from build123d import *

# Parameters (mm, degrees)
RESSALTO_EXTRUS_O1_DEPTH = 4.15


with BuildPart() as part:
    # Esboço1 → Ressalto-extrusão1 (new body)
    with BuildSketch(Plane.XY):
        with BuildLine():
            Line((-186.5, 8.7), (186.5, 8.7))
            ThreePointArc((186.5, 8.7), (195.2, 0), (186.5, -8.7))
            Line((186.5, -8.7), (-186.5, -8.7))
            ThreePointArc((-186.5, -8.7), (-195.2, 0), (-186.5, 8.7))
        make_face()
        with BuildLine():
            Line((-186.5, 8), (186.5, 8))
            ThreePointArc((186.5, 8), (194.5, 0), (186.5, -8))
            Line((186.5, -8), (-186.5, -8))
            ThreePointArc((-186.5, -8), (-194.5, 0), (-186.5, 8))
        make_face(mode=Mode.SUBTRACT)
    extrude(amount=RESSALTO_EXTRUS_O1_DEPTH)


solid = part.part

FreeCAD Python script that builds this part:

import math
import FreeCAD as App
import Part
import Sketcher

V = App.Vector
Q = App.Units.Quantity

doc = App.newDocument("Part")
body = doc.addObject("PartDesign::Body", "Body")

# Sketch on XY plane
sketch1 = body.newObject("Sketcher::SketchObject", "Sketch")
sketch1.AttachmentSupport = (doc.getObject("XY_Plane"), [""])
sketch1.MapMode = "FlatFace"
sketch1.addGeometry([
    Part.LineSegment(V(186.5, 8.7, 0), V(-186.5, 8.7, 0)),  # 0
    Part.ArcOfCircle(Part.Circle(V(-186.5, 0, 0), V(0, 0, 1), 8.7), math.radians(90), math.radians(270)),  # 1
    Part.LineSegment(V(-186.5, -8.7, 0), V(186.5, -8.7, 0)),  # 2
    Part.ArcOfCircle(Part.Circle(V(186.5, 0, 0), V(0, 0, 1), 8.7), math.radians(-90), math.radians(90)),  # 3
    Part.LineSegment(V(-186.5, 8, 0), V(186.5, 8, 0)),  # 4
    Part.ArcOfCircle(Part.Circle(V(186.5, 0, 0), V(0, 0, 1), 8), math.radians(-90), math.radians(90)),  # 5
    Part.LineSegment(V(186.5, -8, 0), V(-186.5, -8, 0)),  # 6
    Part.ArcOfCircle(Part.Circle(V(-186.5, 0, 0), V(0, 0, 1), 8), math.radians(90), math.radians(270)),  # 7
], False)
sketch1.addConstraint([
    Sketcher.Constraint("Tangent", 0, 2, 1, 1),
    Sketcher.Constraint("Tangent", 1, 2, 2, 1),
    Sketcher.Constraint("Tangent", 2, 2, 3, 1),
    Sketcher.Constraint("Tangent", 3, 2, 0, 1),
    Sketcher.Constraint("Tangent", 4, 2, 5, 2),
    Sketcher.Constraint("Tangent", 5, 1, 6, 1),
    Sketcher.Constraint("Tangent", 6, 2, 7, 2),
    Sketcher.Constraint("Tangent", 7, 1, 4, 1),
    Sketcher.Constraint("Horizontal", 0),
    Sketcher.Constraint("Horizontal", 2),
    Sketcher.Constraint("Horizontal", 4),
    Sketcher.Constraint("Horizontal", 6),
    Sketcher.Constraint("Coincident", 5, 3, 3, 3),
    Sketcher.Constraint("Symmetric", 1, 3, 3, 3, -1, 1),
    Sketcher.Constraint("Vertical", 7, 3, 0, 2),
    Sketcher.Constraint("Radius", 5, Q("8 mm")),
    Sketcher.Constraint("Radius", 1, Q("8.7 mm")),
    Sketcher.Constraint("DistanceX", 0, 2, 0, 1, Q("373 mm")),
])
pad1 = body.newObject("PartDesign::Pad", "Pad")
pad1.Profile = sketch1
pad1.Length = 4.15

doc.recompute()
